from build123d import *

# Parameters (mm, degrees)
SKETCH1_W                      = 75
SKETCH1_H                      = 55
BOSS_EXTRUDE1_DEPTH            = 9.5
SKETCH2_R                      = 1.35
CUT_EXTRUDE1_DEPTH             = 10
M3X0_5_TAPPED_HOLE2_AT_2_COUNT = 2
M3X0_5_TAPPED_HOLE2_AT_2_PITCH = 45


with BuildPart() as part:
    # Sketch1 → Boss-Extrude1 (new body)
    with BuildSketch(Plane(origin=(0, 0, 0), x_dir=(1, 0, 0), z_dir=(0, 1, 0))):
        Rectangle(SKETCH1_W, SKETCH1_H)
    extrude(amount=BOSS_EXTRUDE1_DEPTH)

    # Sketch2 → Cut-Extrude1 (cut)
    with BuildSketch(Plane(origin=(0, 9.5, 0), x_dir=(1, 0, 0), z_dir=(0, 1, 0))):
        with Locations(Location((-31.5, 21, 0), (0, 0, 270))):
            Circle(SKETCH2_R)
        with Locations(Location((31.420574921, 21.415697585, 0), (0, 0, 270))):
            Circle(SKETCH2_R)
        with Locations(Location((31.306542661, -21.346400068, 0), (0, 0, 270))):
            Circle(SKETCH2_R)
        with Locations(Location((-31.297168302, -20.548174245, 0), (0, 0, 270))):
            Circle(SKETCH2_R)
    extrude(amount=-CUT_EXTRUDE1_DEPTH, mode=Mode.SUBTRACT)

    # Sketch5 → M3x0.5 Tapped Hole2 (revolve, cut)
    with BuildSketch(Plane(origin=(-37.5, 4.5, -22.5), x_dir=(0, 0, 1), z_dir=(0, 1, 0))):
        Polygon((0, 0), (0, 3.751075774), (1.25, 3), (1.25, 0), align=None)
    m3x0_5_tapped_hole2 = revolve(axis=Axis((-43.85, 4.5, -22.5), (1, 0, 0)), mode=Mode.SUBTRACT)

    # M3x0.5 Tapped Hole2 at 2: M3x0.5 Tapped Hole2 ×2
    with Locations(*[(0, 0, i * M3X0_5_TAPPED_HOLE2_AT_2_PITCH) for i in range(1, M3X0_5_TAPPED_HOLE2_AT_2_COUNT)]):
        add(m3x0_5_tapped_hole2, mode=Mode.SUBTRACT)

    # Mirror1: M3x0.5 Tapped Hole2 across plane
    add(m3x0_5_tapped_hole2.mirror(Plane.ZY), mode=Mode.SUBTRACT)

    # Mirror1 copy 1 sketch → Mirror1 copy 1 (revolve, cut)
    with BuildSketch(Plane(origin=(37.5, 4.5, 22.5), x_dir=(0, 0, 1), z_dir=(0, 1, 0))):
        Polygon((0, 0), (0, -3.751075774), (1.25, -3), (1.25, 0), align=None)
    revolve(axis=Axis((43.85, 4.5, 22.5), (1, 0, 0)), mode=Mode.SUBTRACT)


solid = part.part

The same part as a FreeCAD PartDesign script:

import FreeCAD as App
import Part
import Sketcher
Q = App.Units.Quantity


def add_polygon(sketch, points):
    """Adds a closed chain of lines whose ends are joined by coincident constraints."""
    first, n = sketch.GeometryCount, len(points)
    for a, b in zip(points, points[1:] + points[:1]):
        sketch.addGeometry(Part.LineSegment(App.Vector(*a, 0), App.Vector(*b, 0)), False)
    for i in range(n):
        sketch.addConstraint(Sketcher.Constraint("Coincident", first + i, 2, first + (i + 1) % n, 1))

doc = App.newDocument("Part")
body = doc.addObject("PartDesign::Body", "Body")

# Sketch on XZ plane
sketch1 = body.newObject("Sketcher::SketchObject", "Sketch")
sketch1.AttachmentSupport = (doc.getObject("XZ_Plane"), [""])
sketch1.MapMode = "FlatFace"
add_polygon(sketch1, [(-38, -28), (-38, 28), (38, 28), (38, -28)])  # lines 0-3
sketch1.addConstraint([
    Sketcher.Constraint("Vertical", 0),
    Sketcher.Constraint("Horizontal", 1),
    Sketcher.Constraint("Vertical", 2),
    Sketcher.Constraint("Horizontal", 3),
    Sketcher.Constraint("Symmetric", 0, 2, 2, 2, -1, 1),
    Sketcher.Constraint("DistanceX", 1, 1, 1, 2, Q("75 mm")),
    Sketcher.Constraint("DistanceY", 0, 1, 0, 2, Q("55 mm")),
])
pad1 = body.newObject("PartDesign::Pad", "Pad")
pad1.Profile = sketch1
pad1.Length = 9.5
pad1.Reversed = True

# Sketch on XZ plane
sketch2 = body.newObject("Sketcher::SketchObject", "Sketch001")
sketch2.AttachmentSupport = (doc.getObject("XZ_Plane"), [""])
sketch2.MapMode = "FlatFace"
sketch2.AttachmentOffset = App.Placement(App.Vector(0, 0, -9.5), App.Rotation())
sketch2.addGeometry([
    Part.Circle(App.Vector(-31.5, -21, 0), App.Vector(0, 0, 1), 1.4),
    Part.Circle(App.Vector(31.4, -21.4, 0), App.Vector(0, 0, 1), 1.4),
    Part.Circle(App.Vector(31.3, 21.3, 0), App.Vector(0, 0, 1), 1.4),
    Part.Circle(App.Vector(-31.3, 20.5, 0), App.Vector(0, 0, 1), 1.4),
], False)
sketch2.addConstraint([
    Sketcher.Constraint("Equal", 0, 1),
    Sketcher.Constraint("Equal", 1, 2),
    Sketcher.Constraint("Equal", 2, 3),
    Sketcher.Constraint("Diameter", 0, Q("2.7 mm")),
    Sketcher.Constraint("DistanceY", 0, 3, -1, 1, Q("21 mm")),
    Sketcher.Constraint("DistanceX", 0, 3, -1, 1, Q("31.5 mm")),
    Sketcher.Constraint("DistanceY", -1, 1, 2, 3, Q("21.3464 mm")),
    Sketcher.Constraint("DistanceX", 3, 3, -1, 1, Q("31.297168 mm")),
    Sketcher.Constraint("DistanceX", 3, 3, 2, 3, Q("62.603711 mm")),
    Sketcher.Constraint("DistanceY", 1, 3, 3, 3, Q("41.963872 mm")),
    Sketcher.Constraint("DistanceX", -1, 1, 1, 3, Q("31.420575 mm")),
    Sketcher.Constraint("DistanceY", 1, 3, -1, 1, Q("21.415698 mm")),
])
pocket1 = body.newObject("PartDesign::Pocket", "Pocket")
pocket1.Profile = sketch2
pocket1.Length = 10
pocket1.Reversed = True

# Sketch on XZ plane
sketch3 = body.newObject("Sketcher::SketchObject", "Sketch002")
sketch3.AttachmentSupport = (doc.getObject("XZ_Plane"), [""])
sketch3.MapMode = "FlatFace"
sketch3.AttachmentOffset = App.Placement(App.Vector(0, 0, -4.5), App.Rotation())
add_polygon(sketch3, [(-33.7, -22.5), (-37.5, -22.5), (-37.5, -21.2), (-34.5, -21.2)])  # lines 0-3
sketch3.addGeometry(Part.LineSegment(App.Vector(-37.5, -22.5, 0), App.Vector(-33.7, -22.5, 0)), True)  # axis
sketch3.addConstraint([
    Sketcher.Constraint("Horizontal", 0),
    Sketcher.Constraint("Vertical", 1),
    Sketcher.Constraint("Horizontal", 2),
    Sketcher.Constraint("Horizontal", 4),
    Sketcher.Constraint("Coincident", 4, 1, 0, 2),
    Sketcher.Constraint("Equal", 0, 4),
    Sketcher.Constraint("DistanceX", 2, 1, 2, 2, Q("3 mm")),
    Sketcher.Constraint("Angle", 3, Q("-59 deg")),
    Sketcher.Constraint("DistanceY", 1, 1, 1, 2, Q("1.25 mm")),
    Sketcher.Constraint("DistanceX", 0, 2, -1, 1, Q("37.5 mm")),
    Sketcher.Constraint("DistanceY", 0, 2, -1, 1, Q("22.5 mm")),
])
groove = body.newObject("PartDesign::Groove", "Groove")
groove.Profile = sketch3
groove.ReferenceAxis = (sketch3, ["Axis0"])
groove.Angle = 360
doc.recompute()

linearpattern = body.newObject("PartDesign::LinearPattern", "LinearPattern")
linearpattern.Originals = [groove]
linearpattern.Direction = (doc.getObject("Z_Axis"), [""])
linearpattern.Mode = "offset"
linearpattern.Offset = 45
linearpattern.Occurrences = 2
body.Tip = linearpattern
doc.recompute()

mirrored = body.newObject("PartDesign::Mirrored", "Mirrored")
mirrored.Originals = [groove]
mirrored.MirrorPlane = (doc.getObject("YZ_Plane"), [""])
body.Tip = mirrored

# Sketch on XZ plane
sketch4 = body.newObject("Sketcher::SketchObject", "Sketch003")
sketch4.AttachmentSupport = (doc.getObject("XZ_Plane"), [""])
sketch4.MapMode = "FlatFace"
sketch4.AttachmentOffset = App.Placement(App.Vector(0, 0, -4.5), App.Rotation())
add_polygon(sketch4, [(37.5, 22.5), (33.7, 22.5), (34.5, 23.8), (37.5, 23.8)])  # lines 0-3
sketch4.addGeometry(Part.LineSegment(App.Vector(33.7, 22.5, 0), App.Vector(37.5, 22.5, 0)), True)  # axis
sketch4.addConstraint([
    Sketcher.Constraint("Horizontal", 0),
    Sketcher.Constraint("Horizontal", 2),
    Sketcher.Constraint("Vertical", 3),
    Sketcher.Constraint("Horizontal", 4),
    Sketcher.Constraint("Coincident", 4, 1, 0, 2),
    Sketcher.Constraint("Vertical", 2, 2, 4, 2),
    Sketcher.Constraint("DistanceX", 2, 1, 2, 2, Q("3 mm")),
    Sketcher.Constraint("Angle", 1, Q("59 deg")),
    Sketcher.Constraint("DistanceY", 3, 2, 3, 1, Q("1.25 mm")),
    Sketcher.Constraint("DistanceY", -1, 1, 0, 2, Q("22.5 mm")),
    Sketcher.Constraint("DistanceX", -1, 1, 1, 2, Q("34.5 mm")),
])
groove2 = body.newObject("PartDesign::Groove", "Groove001")
groove2.Profile = sketch4
groove2.ReferenceAxis = (sketch4, ["Axis0"])
groove2.Angle = 360

doc.recompute()
